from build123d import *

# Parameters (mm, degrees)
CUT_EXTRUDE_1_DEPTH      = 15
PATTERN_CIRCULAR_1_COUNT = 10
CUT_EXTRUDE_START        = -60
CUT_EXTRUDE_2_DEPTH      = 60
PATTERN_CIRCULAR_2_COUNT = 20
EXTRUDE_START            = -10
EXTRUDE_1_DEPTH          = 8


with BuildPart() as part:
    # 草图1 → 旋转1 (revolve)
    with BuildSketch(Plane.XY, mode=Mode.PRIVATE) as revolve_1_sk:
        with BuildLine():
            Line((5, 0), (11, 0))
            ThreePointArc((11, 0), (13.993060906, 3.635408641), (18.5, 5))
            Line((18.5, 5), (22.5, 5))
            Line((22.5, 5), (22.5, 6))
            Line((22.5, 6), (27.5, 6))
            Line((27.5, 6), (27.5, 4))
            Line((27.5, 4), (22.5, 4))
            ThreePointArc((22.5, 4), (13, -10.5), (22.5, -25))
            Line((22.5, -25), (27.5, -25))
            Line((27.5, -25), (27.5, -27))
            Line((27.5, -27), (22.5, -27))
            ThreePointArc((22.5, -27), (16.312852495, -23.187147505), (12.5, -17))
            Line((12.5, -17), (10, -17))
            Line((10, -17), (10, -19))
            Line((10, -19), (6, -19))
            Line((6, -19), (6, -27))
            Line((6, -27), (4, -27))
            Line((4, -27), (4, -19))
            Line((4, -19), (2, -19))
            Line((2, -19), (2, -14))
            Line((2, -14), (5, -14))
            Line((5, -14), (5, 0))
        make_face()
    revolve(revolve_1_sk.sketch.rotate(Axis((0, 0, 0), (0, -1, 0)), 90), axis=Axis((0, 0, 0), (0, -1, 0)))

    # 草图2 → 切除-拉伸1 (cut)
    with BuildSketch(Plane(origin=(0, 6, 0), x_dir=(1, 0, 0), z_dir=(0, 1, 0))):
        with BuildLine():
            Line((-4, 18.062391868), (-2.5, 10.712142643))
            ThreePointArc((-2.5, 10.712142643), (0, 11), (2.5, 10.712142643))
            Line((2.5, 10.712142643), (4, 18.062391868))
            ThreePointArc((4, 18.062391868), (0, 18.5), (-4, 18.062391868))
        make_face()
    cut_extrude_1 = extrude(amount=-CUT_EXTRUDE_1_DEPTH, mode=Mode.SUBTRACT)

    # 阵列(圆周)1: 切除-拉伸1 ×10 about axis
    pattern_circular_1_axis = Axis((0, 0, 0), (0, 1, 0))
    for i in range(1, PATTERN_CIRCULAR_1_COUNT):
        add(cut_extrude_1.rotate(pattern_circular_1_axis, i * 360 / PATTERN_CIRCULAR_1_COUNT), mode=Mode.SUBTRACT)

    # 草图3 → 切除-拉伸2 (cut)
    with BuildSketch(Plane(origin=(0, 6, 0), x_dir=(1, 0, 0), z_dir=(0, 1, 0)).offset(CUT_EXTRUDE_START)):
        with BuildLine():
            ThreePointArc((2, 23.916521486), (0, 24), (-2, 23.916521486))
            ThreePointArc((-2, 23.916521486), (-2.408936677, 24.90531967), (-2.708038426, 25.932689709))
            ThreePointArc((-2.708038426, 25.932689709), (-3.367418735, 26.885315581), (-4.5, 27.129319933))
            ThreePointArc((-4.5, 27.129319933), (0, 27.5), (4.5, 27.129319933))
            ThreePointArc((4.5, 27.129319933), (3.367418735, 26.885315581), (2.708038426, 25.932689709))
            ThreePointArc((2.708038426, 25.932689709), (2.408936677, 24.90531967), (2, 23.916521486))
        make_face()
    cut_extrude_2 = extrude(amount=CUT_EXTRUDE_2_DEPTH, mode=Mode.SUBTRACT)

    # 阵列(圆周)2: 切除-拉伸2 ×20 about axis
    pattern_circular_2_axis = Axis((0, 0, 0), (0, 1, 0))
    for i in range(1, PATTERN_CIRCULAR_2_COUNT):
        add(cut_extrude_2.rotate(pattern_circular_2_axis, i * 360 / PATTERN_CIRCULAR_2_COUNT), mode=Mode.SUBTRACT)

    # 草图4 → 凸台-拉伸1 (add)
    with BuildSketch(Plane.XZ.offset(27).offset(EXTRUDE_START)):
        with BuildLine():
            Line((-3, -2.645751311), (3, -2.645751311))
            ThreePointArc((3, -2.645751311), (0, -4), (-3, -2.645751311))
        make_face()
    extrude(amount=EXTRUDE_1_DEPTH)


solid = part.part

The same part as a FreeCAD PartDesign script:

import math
import FreeCAD as App
import Part
import Sketcher
from FreeCAD import Vector

doc = App.newDocument("Part")
body = doc.addObject("PartDesign::Body", "Body")

sketch1 = doc.addObject("Sketcher::SketchObject", "Sketch")
body.addObject(sketch1)
sketch1.AttachmentSupport = (doc.XY_Plane, [""])
sketch1.MapMode = "FlatFace"
sketch1.addGeometry(Part.LineSegment(Vector(11, 0, 0), Vector(5, 0, 0)), False)
sketch1.addGeometry(Part.LineSegment(Vector(5, 0, 0), Vector(5, -14, 0)), False)
sketch1.addGeometry(Part.LineSegment(Vector(5, -14, 0), Vector(2, -14, 0)), False)
sketch1.addGeometry(Part.LineSegment(Vector(2, -14, 0), Vector(2, -19, 0)), False)
sketch1.addGeometry(Part.LineSegment(Vector(2, -19, 0), Vector(4, -19, 0)), False)
sketch1.addGeometry(Part.LineSegment(Vector(4, -19, 0), Vector(4, -27, 0)), False)
sketch1.addGeometry(Part.LineSegment(Vector(4, -27, 0), Vector(6, -27, 0)), False)
sketch1.addGeometry(Part.LineSegment(Vector(6, -27, 0), Vector(6, -19, 0)), False)
sketch1.addGeometry(Part.LineSegment(Vector(6, -19, 0), Vector(10, -19, 0)), False)
sketch1.addGeometry(Part.LineSegment(Vector(10, -19, 0), Vector(10, -17, 0)), False)
sketch1.addGeometry(Part.LineSegment(Vector(10, -17, 0), Vector(12.5, -17, 0)), False)
sketch1.addGeometry(Part.ArcOfCircle(Part.Circle(Vector(27.435868, -12.064132, 0), Vector(0, 0, 1), 15.730319), math.radians(-161.71279), math.radians(-108.28721)), False)
sketch1.addGeometry(Part.LineSegment(Vector(22.5, -27, 0), Vector(27.5, -27, 0)), False)
sketch1.addGeometry(Part.LineSegment(Vector(27.5, -27, 0), Vector(27.5, -25, 0)), False)
sketch1.addGeometry(Part.LineSegment(Vector(27.5, -25, 0), Vector(22.5, -25, 0)), False)
sketch1.addGeometry(Part.ArcOfCircle(Part.Circle(Vector(28.815789, -10.5, 0), Vector(0, 0, 1), 15.815789), math.radians(113.536578), math.radians(246.463422)), False)
sketch1.addGeometry(Part.LineSegment(Vector(22.5, 4, 0), Vector(27.5, 4, 0)), False)
sketch1.addGeometry(Part.LineSegment(Vector(27.5, 4, 0), Vector(27.5, 6, 0)), False)
sketch1.addGeometry(Part.LineSegment(Vector(27.5, 6, 0), Vector(22.5, 6, 0)), False)
sketch1.addGeometry(Part.LineSegment(Vector(22.5, 6, 0), Vector(22.5, 5, 0)), False)
sketch1.addGeometry(Part.LineSegment(Vector(22.5, 5, 0), Vector(18.5, 5, 0)), False)
sketch1.addGeometry(Part.ArcOfCircle(Part.Circle(Vector(18.5, -3.125, 0), Vector(0, 0, 1), 8.125), math.radians(90), math.radians(157.380135)), False)
sketch1.addConstraint(Sketcher.Constraint("Coincident", 0, 2, 1, 1))
sketch1.addConstraint(Sketcher.Constraint("Coincident", 1, 2, 2, 1))
sketch1.addConstraint(Sketcher.Constraint("Coincident", 2, 2, 3, 1))
sketch1.addConstraint(Sketcher.Constraint("Coincident", 3, 2, 4, 1))
sketch1.addConstraint(Sketcher.Constraint("Coincident", 4, 2, 5, 1))
sketch1.addConstraint(Sketcher.Constraint("Coincident", 5, 2, 6, 1))
sketch1.addConstraint(Sketcher.Constraint("Coincident", 6, 2, 7, 1))
sketch1.addConstraint(Sketcher.Constraint("Coincident", 7, 2, 8, 1))
sketch1.addConstraint(Sketcher.Constraint("Coincident", 8, 2, 9, 1))
sketch1.addConstraint(Sketcher.Constraint("Coincident", 9, 2, 10, 1))
sketch1.addConstraint(Sketcher.Constraint("Coincident", 10, 2, 11, 1))
sketch1.addConstraint(Sketcher.Constraint("Coincident", 11, 2, 12, 1))
sketch1.addConstraint(Sketcher.Constraint("Coincident", 12, 2, 13, 1))
sketch1.addConstraint(Sketcher.Constraint("Coincident", 13, 2, 14, 1))
sketch1.addConstraint(Sketcher.Constraint("Coincident", 14, 2, 15, 2))
sketch1.addConstraint(Sketcher.Constraint("Coincident", 15, 1, 16, 1))
sketch1.addConstraint(Sketcher.Constraint("Coincident", 16, 2, 17, 1))
sketch1.addConstraint(Sketcher.Constraint("Coincident", 17, 2, 18, 1))
sketch1.addConstraint(Sketcher.Constraint("Coincident", 18, 2, 19, 1))
sketch1.addConstraint(Sketcher.Constraint("Coincident", 19, 2, 20, 1))
sketch1.addConstraint(Sketcher.Constraint("Tangent", 20, 2, 21, 1))
sketch1.addConstraint(Sketcher.Constraint("Coincident", 21, 2, 0, 1))
sketch1.addConstraint(Sketcher.Constraint("Horizontal", 0))
sketch1.addConstraint(Sketcher.Constraint("Vertical", 1))
sketch1.addConstraint(Sketcher.Constraint("Horizontal", 2))
sketch1.addConstraint(Sketcher.Constraint("Vertical", 3))
sketch1.addConstraint(Sketcher.Constraint("Horizontal", 4))
sketch1.addConstraint(Sketcher.Constraint("Vertical", 5))
sketch1.addConstraint(Sketcher.Constraint("Horizontal", 6))
sketch1.addConstraint(Sketcher.Constraint("Vertical", 7))
sketch1.addConstraint(Sketcher.Constraint("Horizontal", 8))
sketch1.addConstraint(Sketcher.Constraint("Vertical", 9))
sketch1.addConstraint(Sketcher.Constraint("Horizontal", 10))
sketch1.addConstraint(Sketcher.Constraint("Horizontal", 12))
sketch1.addConstraint(Sketcher.Constraint("Vertical", 13))
sketch1.addConstraint(Sketcher.Constraint("Horizontal", 14))
sketch1.addConstraint(Sketcher.Constraint("Horizontal", 16))
sketch1.addConstraint(Sketcher.Constraint("Vertical", 17))
sketch1.addConstraint(Sketcher.Constraint("Horizontal", 18))
sketch1.addConstraint(Sketcher.Constraint("Vertical", 19))
sketch1.addConstraint(Sketcher.Constraint("Horizontal", 20))
sketch1.addConstraint(Sketcher.Constraint("PointOnObject", 0, 2, -1))
sketch1.addConstraint(Sketcher.Constraint("Horizontal", 4, 2, 7, 2))
sketch1.addConstraint(Sketcher.Constraint("Horizontal", 6, 2, 11, 2))
sketch1.addConstraint(Sketcher.Constraint("Vertical", 11, 2, 14, 2))
sketch1.addConstraint(Sketcher.Constraint("Vertical", 14, 2, 15, 1))
sketch1.addConstraint(Sketcher.Constraint("Vertical", 13, 2, 16, 2))
sketch1.addConstraint(Sketcher.Constraint("Vertical", 15, 1, 18, 2))
sketch1.addConstraint(Sketcher.Constraint("Equal", 4, 6))
sketch1.addConstraint(Sketcher.Constraint("Equal", 8, 20))
sketch1.addConstraint(Sketcher.Constraint("Equal", 18, 3))
sketch1.addConstraint(Sketcher.Constraint("Equal", 6, 9))
sketch1.addConstraint(Sketcher.Constraint("Equal", 9, 13))
sketch1.addConstraint(Sketcher.Constraint("Equal", 13, 17))
sketch1.addConstraint(Sketcher.Constraint("DistanceX", 0, 2, 0, 1, 6.0))
sketch1.addConstraint(Sketcher.Constraint("DistanceX", 2, 2, 2, 1, 3.0))
sketch1.addConstraint(Sketcher.Constraint("DistanceX", 4, 1, 4, 2, 2.0))
sketch1.addConstraint(Sketcher.Constraint("DistanceX", 8, 1, 8, 2, 4.0))
sketch1.addConstraint(Sketcher.Constraint("DistanceX", 12, 1, 12, 2, 5.0))
sketch1.addConstraint(Sketcher.Constraint("DistanceY", 1, 2, 1, 1, 14.0))
sketch1.addConstraint(Sketcher.Constraint("DistanceY", 5, 2, 5, 1, 8.0))
sketch1.addConstraint(Sketcher.Constraint("DistanceY", 19, 2, 19, 1, 1.0))
sketch1.addConstraint(Sketcher.Constraint("DistanceX", 10, 1, 10, 2, 2.5))
sketch1.addConstraint(Sketcher.Constraint("DistanceX", -1, 1, 0, 2, 5.0))
sketch1.addConstraint(Sketcher.Constraint("DistanceY", -1, 1, 15, 1, 4.0))
sketch1.addConstraint(Sketcher.Constraint("Radius", 21, 8.125))
sketch1.addConstraint(Sketcher.Constraint("Radius", 11, 15.730319))
sketch1.addConstraint(Sketcher.Constraint("Radius", 15, 15.815789))
revolution = doc.addObject("PartDesign::Revolution", "Revolution")
body.addObject(revolution)
revolution.Profile = sketch1
revolution.ReferenceAxis = (sketch1, ["V_Axis"])
revolution.Angle = 360

sketch2 = doc.addObject("Sketcher::SketchObject", "Sketch001")
body.addObject(sketch2)
sketch2.AttachmentSupport = (doc.XZ_Plane, [""])
sketch2.MapMode = "FlatFace"
sketch2.AttachmentOffset = App.Placement(Vector(0, 0, -6), App.Rotation())
sketch2.addGeometry(Part.LineSegment(Vector(-4, -18.062392, 0), Vector(-2.5, -10.712143, 0)), False)
sketch2.addGeometry(Part.ArcOfCircle(Part.Circle(Vector(0, 0, 0), Vector(0, 0, 1), 11), math.radians(-103.136559), math.radians(-76.863441)), False)
sketch2.addGeometry(Part.LineSegment(Vector(2.5, -10.712143, 0), Vector(4, -18.062392, 0)), False)
sketch2.addGeometry(Part.ArcOfCircle(Part.Circle(Vector(0, 0, 0), Vector(0, 0, 1), 18.5), math.radians(-102.48689), math.radians(-77.51311)), False)
sketch2.addConstraint(Sketcher.Constraint("Coincident", 0, 2, 1, 1))
sketch2.addConstraint(Sketcher.Constraint("Coincident", 1, 2, 2, 1))
sketch2.addConstraint(Sketcher.Constraint("Coincident", 2, 2, 3, 2))
sketch2.addConstraint(Sketcher.Constraint("Coincident", 3, 1, 0, 1))
sketch2.addConstraint(Sketcher.Constraint("Coincident", 1, 3, -1, 1))
sketch2.addConstraint(Sketcher.Constraint("Coincident", 3, 3, -1, 1))
sketch2.addConstraint(Sketcher.Constraint("Horizontal", 0, 2, 1, 2))
sketch2.addConstraint(Sketcher.Constraint("Horizontal", 2, 2, 3, 1))
sketch2.addConstraint(Sketcher.Constraint("Radius", 1, 11.0))
sketch2.addConstraint(Sketcher.Constraint("Radius", 3, 18.5))
sketch2.addConstraint(Sketcher.Constraint("DistanceX", -1, 1, 2, 2, 4.0))
sketch2.addConstraint(Sketcher.Constraint("DistanceX", 0, 2, 1, 2, 5.0))
pocket1 = doc.addObject("PartDesign::Pocket", "Pocket")
body.addObject(pocket1)
pocket1.Profile = sketch2
pocket1.Length = 15
pocket1.Reversed = True
doc.recompute()

polarpattern = doc.addObject("PartDesign::PolarPattern", "PolarPattern")
body.addObject(polarpattern)
polarpattern.Originals = [pocket1]
polarpattern.Axis = (doc.Y_Axis, [""])
polarpattern.Angle = 360
polarpattern.Occurrences = 10
body.Tip = polarpattern

sketch3 = doc.addObject("Sketcher::SketchObject", "Sketch002")
body.addObject(sketch3)
sketch3.AttachmentSupport = (doc.XZ_Plane, [""])
sketch3.MapMode = "FlatFace"
sketch3.AttachmentOffset = App.Placement(Vector(0, 0, 54), App.Rotation())
sketch3.addGeometry(Part.ArcOfCircle(Part.Circle(Vector(0, 0, 0), Vector(0, 0, 1), 24), math.radians(-94.780192), math.radians(-85.219808)), False)
sketch3.addGeometry(Part.ArcOfCircle(Part.Circle(Vector(-6.870894, -28.164213, 0), Vector(0, 0, 1), 9.835428), math.radians(13.113819), math.radians(25.586714)), False)
sketch3.addGeometry(Part.ArcOfCircle(Part.Circle(Vector(4.242228, -25.575282, 0), Vector(0, 0, 1), 1.575271), math.radians(-166.886181), math.radians(-80.581973)), False)
sketch3.addGeometry(Part.ArcOfCircle(Part.Circle(Vector(0, 0, 0), Vector(0, 0, 1), 27.5), math.radians(-99.418027), math.radians(-80.581973)), False)
sketch3.addGeometry(Part.ArcOfCircle(Part.Circle(Vector(-4.242228, -25.575282, 0), Vector(0, 0, 1), 1.575271), math.radians(-99.418027), math.radians(-13.113819)), False)
sketch3.addGeometry(Part.ArcOfCircle(Part.Circle(Vector(6.870894, -28.164213, 0), Vector(0, 0, 1), 9.835428), math.radians(154.413286), math.radians(166.886181)), False)
sketch3.addConstraint(Sketcher.Constraint("Coincident", 0, 2, 1, 2))
sketch3.addConstraint(Sketcher.Constraint("Tangent", 1, 1, 2, 1))
sketch3.addConstraint(Sketcher.Constraint("Tangent", 2, 2, 3, 2))
sketch3.addConstraint(Sketcher.Constraint("Tangent", 3, 1, 4, 1))
sketch3.addConstraint(Sketcher.Constraint("Tangent", 4, 2, 5, 2))
sketch3.addConstraint(Sketcher.Constraint("Coincident", 5, 1, 0, 1))
sketch3.addConstraint(Sketcher.Constraint("Coincident", 0, 3, -1, 1))
sketch3.addConstraint(Sketcher.Constraint("Coincident", 3, 3, -1, 1))
sketch3.addConstraint(Sketcher.Constraint("Equal", 2, 4))
sketch3.addConstraint(Sketcher.Constraint("Equal", 1, 5))
sketch3.addConstraint(Sketcher.Constraint("Symmetric", 1, 3, 5, 3, -2))
sketch3.addConstraint(Sketcher.Constraint("Radius", 0, 24.0))
sketch3.addConstraint(Sketcher.Constraint("Radius", 3, 27.5))
sketch3.addConstraint(Sketcher.Constraint("DistanceX", -1, 1, 0, 2, 2.0))
sketch3.addConstraint(Sketcher.Constraint("DistanceX", -1, 1, 2, 2, 4.5))
sketch3.addConstraint(Sketcher.Constraint("Radius", 2, 1.575271))
sketch3.addConstraint(Sketcher.Constraint("Radius", 1, 9.835428))
pocket2 = doc.addObject("PartDesign::Pocket", "Pocket001")
body.addObject(pocket2)
pocket2.Profile = sketch3
pocket2.Length = 60
doc.recompute()

polarpattern2 = doc.addObject("PartDesign::PolarPattern", "PolarPattern001")
body.addObject(polarpattern2)
polarpattern2.Originals = [pocket2]
polarpattern2.Axis = (doc.Y_Axis, [""])
polarpattern2.Angle = 360
polarpattern2.Occurrences = 20
body.Tip = polarpattern2

sketch4 = doc.addObject("Sketcher::SketchObject", "Sketch003")
body.addObject(sketch4)
sketch4.AttachmentSupport = (doc.XZ_Plane, [""])
sketch4.MapMode = "FlatFace"
sketch4.AttachmentOffset = App.Placement(Vector(0, 0, 17), App.Rotation())
sketch4.addGeometry(Part.LineSegment(Vector(3, -2.645751, 0), Vector(-3, -2.645751, 0)), False)
sketch4.addGeometry(Part.ArcOfCircle(Part.Circle(Vector(0, 0, 0), Vector(0, 0, 1), 4), math.radians(-138.590378), math.radians(-41.409622)), False)
sketch4.addConstraint(Sketcher.Constraint("Coincident", 0, 1, 1, 2))
sketch4.addConstraint(Sketcher.Constraint("Coincident", 1, 1, 0, 2))
sketch4.addConstraint(Sketcher.Constraint("Horizontal", 0))
sketch4.addConstraint(Sketcher.Constraint("Coincident", 1, 3, -1, 1))
sketch4.addConstraint(Sketcher.Constraint("Radius", 1, 4.0))
sketch4.addConstraint(Sketcher.Constraint("DistanceX", 0, 2, 0, 1, 6.0))
pad1 = doc.addObject("PartDesign::Pad", "Pad")
body.addObject(pad1)
pad1.Profile = sketch4
pad1.Length = 8

doc.recompute()
